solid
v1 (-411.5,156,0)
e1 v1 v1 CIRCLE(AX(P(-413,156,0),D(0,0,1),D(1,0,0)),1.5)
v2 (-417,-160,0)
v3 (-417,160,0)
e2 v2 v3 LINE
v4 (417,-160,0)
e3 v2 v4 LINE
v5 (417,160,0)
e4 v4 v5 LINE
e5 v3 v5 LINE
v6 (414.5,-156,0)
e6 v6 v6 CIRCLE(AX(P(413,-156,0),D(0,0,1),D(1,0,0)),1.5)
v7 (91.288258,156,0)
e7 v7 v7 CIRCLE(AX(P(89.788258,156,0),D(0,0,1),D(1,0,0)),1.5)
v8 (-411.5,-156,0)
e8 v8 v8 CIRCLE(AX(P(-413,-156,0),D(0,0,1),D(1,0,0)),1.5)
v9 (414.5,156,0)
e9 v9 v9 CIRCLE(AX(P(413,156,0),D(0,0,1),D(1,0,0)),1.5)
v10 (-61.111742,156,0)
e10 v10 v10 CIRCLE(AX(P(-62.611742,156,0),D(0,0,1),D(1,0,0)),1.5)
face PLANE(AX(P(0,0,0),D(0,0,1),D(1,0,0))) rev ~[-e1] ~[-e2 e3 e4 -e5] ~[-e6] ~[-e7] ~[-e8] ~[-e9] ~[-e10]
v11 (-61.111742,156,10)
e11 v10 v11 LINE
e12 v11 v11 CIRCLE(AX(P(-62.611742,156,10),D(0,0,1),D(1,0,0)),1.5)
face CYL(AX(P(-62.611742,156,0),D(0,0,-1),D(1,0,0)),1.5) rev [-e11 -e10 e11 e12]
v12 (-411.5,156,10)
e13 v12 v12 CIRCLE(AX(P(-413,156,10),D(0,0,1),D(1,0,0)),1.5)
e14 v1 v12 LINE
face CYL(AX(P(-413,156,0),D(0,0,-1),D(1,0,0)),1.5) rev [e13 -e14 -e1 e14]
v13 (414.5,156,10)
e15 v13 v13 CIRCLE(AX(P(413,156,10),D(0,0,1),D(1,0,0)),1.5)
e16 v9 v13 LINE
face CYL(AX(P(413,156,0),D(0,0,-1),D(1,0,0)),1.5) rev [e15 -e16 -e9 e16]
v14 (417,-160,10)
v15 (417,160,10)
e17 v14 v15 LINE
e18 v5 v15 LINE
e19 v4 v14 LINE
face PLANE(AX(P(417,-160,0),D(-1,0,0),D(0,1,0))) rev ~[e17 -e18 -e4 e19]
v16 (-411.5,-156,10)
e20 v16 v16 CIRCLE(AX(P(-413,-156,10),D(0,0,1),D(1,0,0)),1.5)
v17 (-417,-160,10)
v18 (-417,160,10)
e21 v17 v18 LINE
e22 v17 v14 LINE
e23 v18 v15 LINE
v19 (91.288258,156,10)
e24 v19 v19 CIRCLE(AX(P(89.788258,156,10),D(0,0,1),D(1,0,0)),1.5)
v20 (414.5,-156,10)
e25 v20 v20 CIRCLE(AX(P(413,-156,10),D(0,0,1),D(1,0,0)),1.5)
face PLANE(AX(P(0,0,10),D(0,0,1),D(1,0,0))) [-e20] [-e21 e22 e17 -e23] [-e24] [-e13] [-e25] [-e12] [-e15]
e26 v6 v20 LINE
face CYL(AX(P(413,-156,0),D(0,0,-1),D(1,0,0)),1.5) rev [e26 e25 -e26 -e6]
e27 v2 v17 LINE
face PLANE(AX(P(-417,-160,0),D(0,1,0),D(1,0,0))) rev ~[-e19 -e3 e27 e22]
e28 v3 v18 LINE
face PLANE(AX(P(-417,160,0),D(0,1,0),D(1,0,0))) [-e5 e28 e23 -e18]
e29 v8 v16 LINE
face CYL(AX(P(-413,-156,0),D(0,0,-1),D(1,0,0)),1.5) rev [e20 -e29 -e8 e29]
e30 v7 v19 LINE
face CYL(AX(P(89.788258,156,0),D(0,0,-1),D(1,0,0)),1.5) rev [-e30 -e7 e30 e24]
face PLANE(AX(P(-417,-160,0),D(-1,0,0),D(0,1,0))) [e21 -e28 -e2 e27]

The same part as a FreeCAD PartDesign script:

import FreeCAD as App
import Part
import Sketcher


def add_polygon(sketch, points):
    """Adds a closed chain of lines whose ends are joined by coincident constraints."""
    first, n = sketch.GeometryCount, len(points)
    for a, b in zip(points, points[1:] + points[:1]):
        sketch.addGeometry(Part.LineSegment(App.Vector(*a, 0), App.Vector(*b, 0)), False)
    for i in range(n):
        sketch.addConstraint(Sketcher.Constraint("Coincident", first + i, 2, first + (i + 1) % n, 1))

doc = App.newDocument("Part")
params = doc.addObject("Spreadsheet::Sheet", "Params")
for row, (alias, value) in enumerate([
    ("sketch1_diameter", "3 mm"),
    ("sketch1_width", "834 mm"),
    ("sketch1_height", "320 mm"),
    ("pad1_length", "10 mm"),
], start=1):
    params.set(f"A{row}", alias)
    params.set(f"B{row}", "=" + value)
    params.setAlias(f"B{row}", alias)

body = doc.addObject("PartDesign::Body", "Body")

# Sketch on XY plane
sketch1 = body.newObject("Sketcher::SketchObject", "Sketch")
sketch1.AttachmentSupport = (doc.getObject("XY_Plane"), [""])
sketch1.MapMode = "FlatFace"
add_polygon(sketch1, [(-417, 160), (-417, -160), (417, -160), (417, 160)])  # lines 0-3
sketch1.addGeometry(Part.Circle(App.Vector(-413, -156, 0), App.Vector(0, 0, 1), 1.5), False)  # 4
sketch1.addGeometry(Part.Circle(App.Vector(413, -156, 0), App.Vector(0, 0, 1), 1.5), False)  # 5
sketch1.addGeometry(Part.Circle(App.Vector(-413, 156, 0), App.Vector(0, 0, 1), 1.5), False)  # 6
sketch1.addGeometry(Part.Circle(App.Vector(-62.6, 156, 0), App.Vector(0, 0, 1), 1.5), False)  # 7
sketch1.addGeometry(Part.Circle(App.Vector(89.8, 156, 0), App.Vector(0, 0, 1), 1.5), False)  # 8
sketch1.addGeometry(Part.Circle(App.Vector(413, 156, 0), App.Vector(0, 0, 1), 1.5), False)  # 9
sketch1.addConstraint([
    Sketcher.Constraint("Vertical", 0),
    Sketcher.Constraint("Horizontal", 1),
    Sketcher.Constraint("Vertical", 2),
    Sketcher.Constraint("Horizontal", 3),
    Sketcher.Constraint("Equal", 4, 5),
    Sketcher.Constraint("Equal", 5, 6),
    Sketcher.Constraint("Equal", 6, 7),
    Sketcher.Constraint("Equal", 7, 8),
    Sketcher.Constraint("Equal", 8, 9),
    Sketcher.Constraint("Symmetric", 5, 3, 6, 3, -1, 1),
    Sketcher.Constraint("Symmetric", 4, 3, 9, 3, -1, 1),
    Sketcher.Constraint("Symmetric", 0, 2, 2, 2, -1, 1),
    Sketcher.Constraint("Symmetric", 4, 3, 5, 3, -2),
    Sketcher.Constraint("Horizontal", 6, 3, 7, 3),
    Sketcher.Constraint("Horizontal", 7, 3, 8, 3),
    Sketcher.Constraint("Diameter", 4, 3.0),
    Sketcher.Constraint("DistanceX", 1, 1, 1, 2, 834.0),
    Sketcher.Constraint("DistanceY", 0, 2, 0, 1, 320.0),
    Sketcher.Constraint("DistanceX", 4, 3, -1, 1, 413.0),
    Sketcher.Constraint("DistanceY", 4, 3, -1, 1, 156.0),
    Sketcher.Constraint("DistanceX", 7, 3, 8, 3, 152.4),
    Sketcher.Constraint("DistanceX", -1, 1, 8, 3, 89.788258),
])
sketch1.setExpression("Constraints[19]", "Params.sketch1_diameter")
sketch1.setExpression("Constraints[20]", "Params.sketch1_width")
sketch1.setExpression("Constraints[21]", "Params.sketch1_height")
pad1 = body.newObject("PartDesign::Pad", "Pad")
pad1.Profile = sketch1
pad1.setExpression("Length", "Params.pad1_length")

doc.recompute()
